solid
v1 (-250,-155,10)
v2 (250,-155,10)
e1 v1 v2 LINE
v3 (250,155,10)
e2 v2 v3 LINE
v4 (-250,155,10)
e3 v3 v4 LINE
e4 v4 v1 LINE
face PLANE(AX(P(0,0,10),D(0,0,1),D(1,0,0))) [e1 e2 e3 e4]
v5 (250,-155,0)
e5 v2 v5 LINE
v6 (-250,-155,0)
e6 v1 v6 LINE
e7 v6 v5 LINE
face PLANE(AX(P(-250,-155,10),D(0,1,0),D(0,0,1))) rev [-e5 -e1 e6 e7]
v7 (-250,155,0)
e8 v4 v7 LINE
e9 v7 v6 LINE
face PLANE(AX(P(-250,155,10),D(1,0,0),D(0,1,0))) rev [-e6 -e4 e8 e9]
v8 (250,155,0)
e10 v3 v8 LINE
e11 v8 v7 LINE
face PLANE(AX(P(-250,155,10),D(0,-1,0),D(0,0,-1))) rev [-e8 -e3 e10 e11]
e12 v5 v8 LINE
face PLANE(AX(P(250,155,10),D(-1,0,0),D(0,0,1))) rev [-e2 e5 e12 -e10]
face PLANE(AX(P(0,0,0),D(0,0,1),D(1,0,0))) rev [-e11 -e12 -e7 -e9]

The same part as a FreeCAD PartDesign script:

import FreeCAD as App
import Part
import Sketcher

V = App.Vector


def add_polygon(sketch, points):
    """Adds a closed chain of lines whose ends are joined by coincident constraints."""
    first, n = sketch.GeometryCount, len(points)
    for a, b in zip(points, points[1:] + points[:1]):
        sketch.addGeometry(Part.LineSegment(App.Vector(*a, 0), App.Vector(*b, 0)), False)
    for i in range(n):
        sketch.addConstraint(Sketcher.Constraint("Coincident", first + i, 2, first + (i + 1) % n, 1))

doc = App.newDocument("Part")
params = doc.addObject("Spreadsheet::Sheet", "Params")
for row, (alias, value) in enumerate([
    ("sketch1_width", "500 mm"),
    ("sketch1_height", "310 mm"),
    ("pad1_length", "10 mm"),
], start=1):
    params.set(f"A{row}", alias)
    params.set(f"B{row}", "=" + value)
    params.setAlias(f"B{row}", alias)

body = doc.addObject("PartDesign::Body", "Body")

# Sketch on XY plane
sketch1 = body.newObject("Sketcher::SketchObject", "Sketch")
sketch1.AttachmentSupport = (doc.getObject("XY_Plane"), [""])
sketch1.MapMode = "FlatFace"
add_polygon(sketch1, [(-250, 155), (-250, -155), (250, -155), (250, 155)])  # lines 0-3
sketch1.addConstraint(Sketcher.Constraint("Vertical", 0))
sketch1.addConstraint(Sketcher.Constraint("Horizontal", 1))
sketch1.addConstraint(Sketcher.Constraint("Vertical", 2))
sketch1.addConstraint(Sketcher.Constraint("Horizontal", 3))
sketch1.addConstraint(Sketcher.Constraint("Symmetric", 0, 2, 2, 2, -1, 1))
sketch1.addConstraint(Sketcher.Constraint("DistanceX", 1, 1, 1, 2, 500.0))
sketch1.addConstraint(Sketcher.Constraint("DistanceY", 0, 2, 0, 1, 310.0))
sketch1.setExpression("Constraints[9]", "Params.sketch1_width")
sketch1.setExpression("Constraints[10]", "Params.sketch1_height")
pad1 = body.newObject("PartDesign::Pad", "Pad")
pad1.Profile = sketch1
pad1.setExpression("Length", "Params.pad1_length")

doc.recompute()
